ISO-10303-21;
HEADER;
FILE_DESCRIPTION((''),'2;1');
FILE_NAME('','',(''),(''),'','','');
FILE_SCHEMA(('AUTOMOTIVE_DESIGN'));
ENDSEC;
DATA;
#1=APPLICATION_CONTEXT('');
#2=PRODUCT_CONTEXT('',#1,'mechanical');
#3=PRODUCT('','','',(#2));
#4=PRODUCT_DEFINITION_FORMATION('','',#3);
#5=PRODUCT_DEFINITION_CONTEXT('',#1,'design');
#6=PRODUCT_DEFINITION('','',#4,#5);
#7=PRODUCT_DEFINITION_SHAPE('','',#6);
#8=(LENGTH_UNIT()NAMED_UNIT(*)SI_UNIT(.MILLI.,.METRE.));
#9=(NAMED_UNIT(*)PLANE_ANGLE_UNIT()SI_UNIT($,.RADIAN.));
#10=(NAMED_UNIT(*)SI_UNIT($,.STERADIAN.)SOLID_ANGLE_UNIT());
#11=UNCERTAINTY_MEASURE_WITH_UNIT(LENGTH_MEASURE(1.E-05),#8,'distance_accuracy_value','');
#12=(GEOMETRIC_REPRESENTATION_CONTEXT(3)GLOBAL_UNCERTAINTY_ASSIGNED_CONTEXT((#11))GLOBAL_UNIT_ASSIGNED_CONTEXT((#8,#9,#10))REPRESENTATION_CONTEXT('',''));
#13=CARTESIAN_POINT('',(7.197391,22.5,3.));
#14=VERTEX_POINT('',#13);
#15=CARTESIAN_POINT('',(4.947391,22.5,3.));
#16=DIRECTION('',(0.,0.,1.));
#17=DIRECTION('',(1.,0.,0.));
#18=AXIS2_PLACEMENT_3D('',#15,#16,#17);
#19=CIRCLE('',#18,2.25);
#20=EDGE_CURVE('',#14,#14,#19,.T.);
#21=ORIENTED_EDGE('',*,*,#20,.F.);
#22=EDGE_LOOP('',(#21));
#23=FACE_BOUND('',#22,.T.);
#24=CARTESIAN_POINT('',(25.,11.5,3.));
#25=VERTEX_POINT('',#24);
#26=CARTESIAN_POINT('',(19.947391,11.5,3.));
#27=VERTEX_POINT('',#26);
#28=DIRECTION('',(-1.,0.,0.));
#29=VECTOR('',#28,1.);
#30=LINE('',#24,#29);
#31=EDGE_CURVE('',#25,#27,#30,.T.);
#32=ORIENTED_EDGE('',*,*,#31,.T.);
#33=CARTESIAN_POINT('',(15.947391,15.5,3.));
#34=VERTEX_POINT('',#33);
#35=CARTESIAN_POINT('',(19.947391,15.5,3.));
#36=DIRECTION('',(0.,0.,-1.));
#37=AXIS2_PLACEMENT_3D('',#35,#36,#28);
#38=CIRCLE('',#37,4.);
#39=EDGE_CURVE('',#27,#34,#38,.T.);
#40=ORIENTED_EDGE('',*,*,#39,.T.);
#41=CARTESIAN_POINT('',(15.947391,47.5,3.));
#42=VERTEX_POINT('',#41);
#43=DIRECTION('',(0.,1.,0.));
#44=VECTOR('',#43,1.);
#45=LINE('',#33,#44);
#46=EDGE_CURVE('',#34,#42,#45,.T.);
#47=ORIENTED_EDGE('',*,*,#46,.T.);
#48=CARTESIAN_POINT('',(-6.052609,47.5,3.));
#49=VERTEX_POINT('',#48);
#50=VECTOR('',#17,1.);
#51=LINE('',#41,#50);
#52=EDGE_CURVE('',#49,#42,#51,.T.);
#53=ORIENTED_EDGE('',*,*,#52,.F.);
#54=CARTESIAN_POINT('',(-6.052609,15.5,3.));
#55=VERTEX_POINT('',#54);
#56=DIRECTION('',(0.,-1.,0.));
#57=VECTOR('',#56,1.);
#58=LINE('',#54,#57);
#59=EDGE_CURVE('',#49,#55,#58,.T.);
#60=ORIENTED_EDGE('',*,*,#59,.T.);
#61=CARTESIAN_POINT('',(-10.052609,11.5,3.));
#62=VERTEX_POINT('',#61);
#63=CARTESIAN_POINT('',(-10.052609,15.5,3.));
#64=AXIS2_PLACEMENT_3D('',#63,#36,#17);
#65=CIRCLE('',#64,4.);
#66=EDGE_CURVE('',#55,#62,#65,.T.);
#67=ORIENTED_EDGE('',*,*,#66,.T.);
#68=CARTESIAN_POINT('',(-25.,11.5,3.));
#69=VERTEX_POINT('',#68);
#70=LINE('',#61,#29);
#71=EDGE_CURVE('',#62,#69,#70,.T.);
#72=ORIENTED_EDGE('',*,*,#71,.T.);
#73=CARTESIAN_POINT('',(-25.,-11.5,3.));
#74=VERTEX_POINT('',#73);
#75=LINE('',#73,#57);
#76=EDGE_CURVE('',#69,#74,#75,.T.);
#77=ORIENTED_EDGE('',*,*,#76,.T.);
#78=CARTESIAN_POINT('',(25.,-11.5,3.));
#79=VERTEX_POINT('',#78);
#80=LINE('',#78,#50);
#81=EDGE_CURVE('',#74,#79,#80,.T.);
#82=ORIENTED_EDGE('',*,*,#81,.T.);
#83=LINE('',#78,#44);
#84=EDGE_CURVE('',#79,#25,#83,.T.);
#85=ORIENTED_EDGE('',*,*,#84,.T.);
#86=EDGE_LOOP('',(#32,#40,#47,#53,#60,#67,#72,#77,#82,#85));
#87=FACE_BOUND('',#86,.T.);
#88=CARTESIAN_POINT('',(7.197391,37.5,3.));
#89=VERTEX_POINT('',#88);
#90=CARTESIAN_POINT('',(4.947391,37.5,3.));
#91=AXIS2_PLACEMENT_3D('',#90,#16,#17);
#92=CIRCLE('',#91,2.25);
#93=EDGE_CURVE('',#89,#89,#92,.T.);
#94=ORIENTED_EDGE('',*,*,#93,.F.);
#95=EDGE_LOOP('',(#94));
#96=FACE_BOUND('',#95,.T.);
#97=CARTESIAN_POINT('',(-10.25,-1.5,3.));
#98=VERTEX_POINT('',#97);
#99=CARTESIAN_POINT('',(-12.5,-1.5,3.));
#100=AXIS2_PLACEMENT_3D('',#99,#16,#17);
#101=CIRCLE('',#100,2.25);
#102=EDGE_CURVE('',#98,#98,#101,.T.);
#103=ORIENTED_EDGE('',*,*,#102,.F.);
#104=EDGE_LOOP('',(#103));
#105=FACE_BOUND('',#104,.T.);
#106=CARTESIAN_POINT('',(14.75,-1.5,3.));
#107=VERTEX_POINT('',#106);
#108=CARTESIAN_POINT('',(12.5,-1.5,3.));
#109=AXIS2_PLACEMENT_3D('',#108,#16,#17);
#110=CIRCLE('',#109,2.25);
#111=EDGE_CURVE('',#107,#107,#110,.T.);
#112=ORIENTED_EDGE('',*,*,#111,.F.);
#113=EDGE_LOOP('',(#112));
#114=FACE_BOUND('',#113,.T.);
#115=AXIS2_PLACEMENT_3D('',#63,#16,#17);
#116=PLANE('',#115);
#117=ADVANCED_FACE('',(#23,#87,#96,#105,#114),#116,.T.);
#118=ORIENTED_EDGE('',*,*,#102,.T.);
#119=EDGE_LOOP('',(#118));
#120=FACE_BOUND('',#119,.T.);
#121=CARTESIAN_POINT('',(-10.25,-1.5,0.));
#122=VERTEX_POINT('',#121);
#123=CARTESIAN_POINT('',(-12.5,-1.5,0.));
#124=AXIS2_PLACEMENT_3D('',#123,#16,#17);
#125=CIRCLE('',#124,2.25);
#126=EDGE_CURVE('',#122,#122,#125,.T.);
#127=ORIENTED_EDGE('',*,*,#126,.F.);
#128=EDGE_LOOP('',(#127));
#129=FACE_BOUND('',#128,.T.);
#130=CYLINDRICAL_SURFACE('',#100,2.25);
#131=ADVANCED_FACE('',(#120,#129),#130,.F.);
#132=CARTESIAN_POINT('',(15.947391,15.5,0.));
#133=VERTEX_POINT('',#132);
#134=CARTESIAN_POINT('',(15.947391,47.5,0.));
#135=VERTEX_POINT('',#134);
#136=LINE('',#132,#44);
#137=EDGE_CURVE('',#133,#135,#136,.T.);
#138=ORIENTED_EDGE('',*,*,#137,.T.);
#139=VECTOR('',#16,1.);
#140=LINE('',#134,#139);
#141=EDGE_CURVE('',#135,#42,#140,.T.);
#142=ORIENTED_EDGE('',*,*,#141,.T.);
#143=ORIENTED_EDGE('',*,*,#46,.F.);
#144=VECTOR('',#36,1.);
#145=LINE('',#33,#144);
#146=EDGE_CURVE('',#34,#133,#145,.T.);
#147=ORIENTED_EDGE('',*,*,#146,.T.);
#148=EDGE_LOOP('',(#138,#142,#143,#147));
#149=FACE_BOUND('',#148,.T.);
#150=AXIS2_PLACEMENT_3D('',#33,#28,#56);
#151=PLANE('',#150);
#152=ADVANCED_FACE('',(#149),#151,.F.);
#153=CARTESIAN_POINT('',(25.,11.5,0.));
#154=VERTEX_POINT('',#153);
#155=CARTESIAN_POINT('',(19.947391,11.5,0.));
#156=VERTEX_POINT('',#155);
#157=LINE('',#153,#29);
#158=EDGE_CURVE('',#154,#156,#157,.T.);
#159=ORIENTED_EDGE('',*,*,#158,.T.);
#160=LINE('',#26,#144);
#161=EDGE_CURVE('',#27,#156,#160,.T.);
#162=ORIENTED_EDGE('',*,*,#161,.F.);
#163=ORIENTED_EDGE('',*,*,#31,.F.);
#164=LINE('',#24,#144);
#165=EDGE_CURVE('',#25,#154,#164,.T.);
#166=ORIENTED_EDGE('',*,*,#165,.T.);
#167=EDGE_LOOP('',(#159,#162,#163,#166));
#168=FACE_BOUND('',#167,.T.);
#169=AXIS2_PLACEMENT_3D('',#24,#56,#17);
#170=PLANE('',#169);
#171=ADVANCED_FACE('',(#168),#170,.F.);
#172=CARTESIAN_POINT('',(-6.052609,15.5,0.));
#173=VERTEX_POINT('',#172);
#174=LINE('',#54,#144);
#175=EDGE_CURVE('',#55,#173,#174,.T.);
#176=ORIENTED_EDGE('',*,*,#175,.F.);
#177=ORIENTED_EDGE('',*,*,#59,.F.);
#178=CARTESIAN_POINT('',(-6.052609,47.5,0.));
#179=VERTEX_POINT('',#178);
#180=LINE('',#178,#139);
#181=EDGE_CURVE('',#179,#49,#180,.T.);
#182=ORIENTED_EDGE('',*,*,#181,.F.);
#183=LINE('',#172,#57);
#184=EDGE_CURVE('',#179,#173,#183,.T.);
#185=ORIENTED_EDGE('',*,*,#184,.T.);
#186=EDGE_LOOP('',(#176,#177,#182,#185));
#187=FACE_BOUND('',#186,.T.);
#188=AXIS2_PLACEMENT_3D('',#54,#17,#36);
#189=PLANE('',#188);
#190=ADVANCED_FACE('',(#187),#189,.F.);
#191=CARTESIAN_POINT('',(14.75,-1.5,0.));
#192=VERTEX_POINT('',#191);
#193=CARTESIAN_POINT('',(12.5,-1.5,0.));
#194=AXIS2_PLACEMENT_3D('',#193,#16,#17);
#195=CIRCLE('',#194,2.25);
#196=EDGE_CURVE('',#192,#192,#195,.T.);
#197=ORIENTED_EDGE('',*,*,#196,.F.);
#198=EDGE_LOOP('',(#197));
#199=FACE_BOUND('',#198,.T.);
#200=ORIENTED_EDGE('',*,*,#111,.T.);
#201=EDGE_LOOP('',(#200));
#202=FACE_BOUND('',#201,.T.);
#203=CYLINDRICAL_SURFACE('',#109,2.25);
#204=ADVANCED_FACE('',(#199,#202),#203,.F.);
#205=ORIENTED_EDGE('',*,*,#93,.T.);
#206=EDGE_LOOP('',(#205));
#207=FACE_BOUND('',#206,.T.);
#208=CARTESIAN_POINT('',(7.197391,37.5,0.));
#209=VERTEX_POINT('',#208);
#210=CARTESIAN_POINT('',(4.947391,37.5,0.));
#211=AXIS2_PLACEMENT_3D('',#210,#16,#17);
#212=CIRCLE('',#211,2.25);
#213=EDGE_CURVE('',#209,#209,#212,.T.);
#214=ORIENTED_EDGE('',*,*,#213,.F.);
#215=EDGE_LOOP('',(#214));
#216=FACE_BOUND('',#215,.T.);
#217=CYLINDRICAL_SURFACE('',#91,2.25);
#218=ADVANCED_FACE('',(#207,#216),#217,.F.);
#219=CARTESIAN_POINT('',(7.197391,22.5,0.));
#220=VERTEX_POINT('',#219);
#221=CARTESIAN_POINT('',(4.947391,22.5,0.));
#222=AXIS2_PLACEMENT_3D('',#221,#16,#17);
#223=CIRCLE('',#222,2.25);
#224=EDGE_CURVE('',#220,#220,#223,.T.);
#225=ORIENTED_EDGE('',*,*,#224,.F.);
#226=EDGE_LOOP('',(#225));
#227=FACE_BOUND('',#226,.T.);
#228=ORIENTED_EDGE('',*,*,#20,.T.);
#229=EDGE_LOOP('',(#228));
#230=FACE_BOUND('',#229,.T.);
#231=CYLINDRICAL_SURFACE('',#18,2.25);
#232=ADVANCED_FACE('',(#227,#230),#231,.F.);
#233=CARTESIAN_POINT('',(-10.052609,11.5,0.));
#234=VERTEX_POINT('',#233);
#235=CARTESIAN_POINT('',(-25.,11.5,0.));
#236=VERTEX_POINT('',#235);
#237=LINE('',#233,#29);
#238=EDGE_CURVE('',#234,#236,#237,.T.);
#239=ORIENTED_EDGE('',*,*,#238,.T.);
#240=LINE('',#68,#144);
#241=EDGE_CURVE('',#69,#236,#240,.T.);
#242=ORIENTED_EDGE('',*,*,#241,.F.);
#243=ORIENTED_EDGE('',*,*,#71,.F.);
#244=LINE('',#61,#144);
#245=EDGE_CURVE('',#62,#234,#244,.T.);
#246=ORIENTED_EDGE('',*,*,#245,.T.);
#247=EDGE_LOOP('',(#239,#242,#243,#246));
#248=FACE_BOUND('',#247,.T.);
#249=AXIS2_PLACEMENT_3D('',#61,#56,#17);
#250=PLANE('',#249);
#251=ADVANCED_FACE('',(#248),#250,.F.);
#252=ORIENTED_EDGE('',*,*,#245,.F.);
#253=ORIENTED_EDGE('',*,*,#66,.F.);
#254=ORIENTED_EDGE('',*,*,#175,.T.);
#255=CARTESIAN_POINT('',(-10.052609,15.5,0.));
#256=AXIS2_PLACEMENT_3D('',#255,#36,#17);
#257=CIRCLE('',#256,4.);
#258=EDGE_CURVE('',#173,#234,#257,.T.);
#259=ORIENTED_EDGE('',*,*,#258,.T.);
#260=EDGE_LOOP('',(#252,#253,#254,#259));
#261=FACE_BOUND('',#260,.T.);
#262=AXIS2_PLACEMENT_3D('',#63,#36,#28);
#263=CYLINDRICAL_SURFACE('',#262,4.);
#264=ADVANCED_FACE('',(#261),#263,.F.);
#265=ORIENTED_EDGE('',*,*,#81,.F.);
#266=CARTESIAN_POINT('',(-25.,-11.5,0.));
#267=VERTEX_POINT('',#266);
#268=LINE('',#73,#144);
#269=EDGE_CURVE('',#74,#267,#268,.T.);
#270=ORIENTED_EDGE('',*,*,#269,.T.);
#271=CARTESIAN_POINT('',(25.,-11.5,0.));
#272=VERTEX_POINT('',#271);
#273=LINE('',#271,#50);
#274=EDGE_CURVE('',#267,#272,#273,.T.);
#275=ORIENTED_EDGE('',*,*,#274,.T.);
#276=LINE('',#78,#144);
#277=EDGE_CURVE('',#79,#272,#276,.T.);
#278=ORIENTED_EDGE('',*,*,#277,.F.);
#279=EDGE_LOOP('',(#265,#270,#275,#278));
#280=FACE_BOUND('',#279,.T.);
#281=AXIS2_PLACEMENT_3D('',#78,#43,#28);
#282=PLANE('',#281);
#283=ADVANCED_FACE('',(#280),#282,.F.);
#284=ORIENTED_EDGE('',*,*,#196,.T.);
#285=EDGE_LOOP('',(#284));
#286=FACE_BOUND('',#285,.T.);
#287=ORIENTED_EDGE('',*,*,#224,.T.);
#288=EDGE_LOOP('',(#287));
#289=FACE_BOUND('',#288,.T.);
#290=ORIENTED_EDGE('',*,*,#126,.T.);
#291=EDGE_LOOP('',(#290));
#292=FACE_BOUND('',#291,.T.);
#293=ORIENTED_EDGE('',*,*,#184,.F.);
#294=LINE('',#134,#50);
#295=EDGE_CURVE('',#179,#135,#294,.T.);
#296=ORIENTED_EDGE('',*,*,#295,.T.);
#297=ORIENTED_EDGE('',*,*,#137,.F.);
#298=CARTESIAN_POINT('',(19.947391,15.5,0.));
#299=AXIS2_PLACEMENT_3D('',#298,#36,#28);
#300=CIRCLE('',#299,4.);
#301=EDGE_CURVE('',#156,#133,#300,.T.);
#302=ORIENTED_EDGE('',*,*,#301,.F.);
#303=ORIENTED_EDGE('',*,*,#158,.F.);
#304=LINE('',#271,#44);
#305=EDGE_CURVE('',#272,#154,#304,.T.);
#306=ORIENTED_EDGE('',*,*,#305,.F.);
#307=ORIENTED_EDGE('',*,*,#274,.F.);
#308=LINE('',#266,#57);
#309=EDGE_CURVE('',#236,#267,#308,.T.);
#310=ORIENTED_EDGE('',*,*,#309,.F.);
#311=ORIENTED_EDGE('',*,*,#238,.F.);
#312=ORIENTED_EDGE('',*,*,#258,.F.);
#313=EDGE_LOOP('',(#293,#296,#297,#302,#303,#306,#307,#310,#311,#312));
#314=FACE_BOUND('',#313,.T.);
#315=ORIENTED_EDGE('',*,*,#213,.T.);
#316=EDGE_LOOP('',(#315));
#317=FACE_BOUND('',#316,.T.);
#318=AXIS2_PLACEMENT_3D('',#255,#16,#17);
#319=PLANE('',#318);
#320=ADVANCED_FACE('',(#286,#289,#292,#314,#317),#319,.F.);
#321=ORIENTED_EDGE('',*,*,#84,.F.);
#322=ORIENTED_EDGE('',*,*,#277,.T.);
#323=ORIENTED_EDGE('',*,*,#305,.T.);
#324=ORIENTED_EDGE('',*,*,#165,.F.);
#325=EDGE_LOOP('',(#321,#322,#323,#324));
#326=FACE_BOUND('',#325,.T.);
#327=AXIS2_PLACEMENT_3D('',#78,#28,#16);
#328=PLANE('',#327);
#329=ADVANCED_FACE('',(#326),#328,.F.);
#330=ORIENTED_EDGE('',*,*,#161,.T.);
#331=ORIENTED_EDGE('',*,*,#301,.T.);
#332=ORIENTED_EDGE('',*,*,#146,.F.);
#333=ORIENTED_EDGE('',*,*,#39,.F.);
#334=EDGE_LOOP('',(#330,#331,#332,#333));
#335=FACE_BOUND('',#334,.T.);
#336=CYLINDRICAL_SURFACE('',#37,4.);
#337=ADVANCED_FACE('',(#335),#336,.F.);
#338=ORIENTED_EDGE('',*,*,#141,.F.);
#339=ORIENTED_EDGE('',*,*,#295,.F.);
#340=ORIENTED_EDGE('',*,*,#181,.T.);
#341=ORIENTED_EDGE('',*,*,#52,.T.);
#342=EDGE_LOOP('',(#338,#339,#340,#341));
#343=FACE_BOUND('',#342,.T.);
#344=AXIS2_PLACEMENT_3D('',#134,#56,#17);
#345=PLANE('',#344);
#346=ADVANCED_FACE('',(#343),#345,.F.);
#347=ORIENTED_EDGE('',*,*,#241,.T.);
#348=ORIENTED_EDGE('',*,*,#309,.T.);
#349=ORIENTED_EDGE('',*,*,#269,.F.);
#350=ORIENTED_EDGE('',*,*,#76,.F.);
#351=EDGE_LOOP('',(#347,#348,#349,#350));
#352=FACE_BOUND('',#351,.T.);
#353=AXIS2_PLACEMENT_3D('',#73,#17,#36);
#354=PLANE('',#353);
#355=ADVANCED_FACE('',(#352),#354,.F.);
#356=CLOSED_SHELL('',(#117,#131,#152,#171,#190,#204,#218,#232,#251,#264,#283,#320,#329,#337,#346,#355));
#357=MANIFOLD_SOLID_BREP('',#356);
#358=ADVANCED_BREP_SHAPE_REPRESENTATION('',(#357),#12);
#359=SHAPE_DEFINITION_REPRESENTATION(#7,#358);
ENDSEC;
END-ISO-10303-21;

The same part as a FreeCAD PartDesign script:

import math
import FreeCAD as App
import Part
import Sketcher
from FreeCAD import Vector
Q = App.Units.Quantity

doc = App.newDocument("Part")
params = doc.addObject("Spreadsheet::Sheet", "Params")
for row, (alias, value) in enumerate([
    ("sketch1_radius", "4 mm"),
    ("sketch1_width", "50 mm"),
    ("sketch1_width2", "22 mm"),
    ("sketch1_height", "23 mm"),
    ("sketch1_height2", "56 mm"),
    ("pad1_length", "3 mm"),
    ("sketch2_diameter", "4.5 mm"),
    ("hole_diameter", "4.5 mm"),
    ("sketch3_diameter", "4.5 mm"),
    ("hole2_diameter", "4.5 mm"),
    ("sketch4_width", "22 mm"),
    ("sketch4_height", "24 mm"),
], start=1):
    params.set(f"A{row}", alias)
    params.set(f"B{row}", "=" + value)
    params.setAlias(f"B{row}", alias)

body = doc.addObject("PartDesign::Body", "Body")

# Sketch on XY plane
sketch1 = body.newObject("Sketcher::SketchObject", "Sketch")
sketch1.AttachmentSupport = (doc.getObject("XY_Plane"), [""])
sketch1.MapMode = "FlatFace"
sketch1.addGeometry(Part.LineSegment(Vector(-10.052609, 11.5, 0), Vector(-25, 11.5, 0)), False)
sketch1.addGeometry(Part.LineSegment(Vector(-25, 11.5, 0), Vector(-25, -11.5, 0)), False)
sketch1.addGeometry(Part.LineSegment(Vector(-25, -11.5, 0), Vector(25, -11.5, 0)), False)
sketch1.addGeometry(Part.LineSegment(Vector(25, -11.5, 0), Vector(25, 11.5, 0)), False)
sketch1.addGeometry(Part.LineSegment(Vector(25, 11.5, 0), Vector(19.947391, 11.5, 0)), False)
sketch1.addGeometry(Part.ArcOfCircle(Part.Circle(Vector(19.947391, 15.5, 0), Vector(0, 0, 1), 4), math.radians(180), math.radians(270)), False)
sketch1.addGeometry(Part.LineSegment(Vector(15.947391, 15.5, 0), Vector(15.947391, 71.5, 0)), False)
sketch1.addGeometry(Part.LineSegment(Vector(15.947391, 71.5, 0), Vector(-6.052609, 71.5, 0)), False)
sketch1.addGeometry(Part.LineSegment(Vector(-6.052609, 71.5, 0), Vector(-6.052609, 15.5, 0)), False)
sketch1.addGeometry(Part.ArcOfCircle(Part.Circle(Vector(-10.052609, 15.5, 0), Vector(0, 0, 1), 4), math.radians(-90), math.radians(0)), False)
sketch1.addConstraint(Sketcher.Constraint("Coincident", 0, 2, 1, 1))
sketch1.addConstraint(Sketcher.Constraint("Coincident", 1, 2, 2, 1))
sketch1.addConstraint(Sketcher.Constraint("Coincident", 2, 2, 3, 1))
sketch1.addConstraint(Sketcher.Constraint("Coincident", 3, 2, 4, 1))
sketch1.addConstraint(Sketcher.Constraint("Tangent", 4, 2, 5, 2))
sketch1.addConstraint(Sketcher.Constraint("Tangent", 5, 1, 6, 1))
sketch1.addConstraint(Sketcher.Constraint("Coincident", 6, 2, 7, 1))
sketch1.addConstraint(Sketcher.Constraint("Coincident", 7, 2, 8, 1))
sketch1.addConstraint(Sketcher.Constraint("Tangent", 8, 2, 9, 2))
sketch1.addConstraint(Sketcher.Constraint("Tangent", 9, 1, 0, 1))
sketch1.addConstraint(Sketcher.Constraint("Horizontal", 0))
sketch1.addConstraint(Sketcher.Constraint("Vertical", 1))
sketch1.addConstraint(Sketcher.Constraint("Horizontal", 2))
sketch1.addConstraint(Sketcher.Constraint("Vertical", 3))
sketch1.addConstraint(Sketcher.Constraint("Horizontal", 4))
sketch1.addConstraint(Sketcher.Constraint("Vertical", 6))
sketch1.addConstraint(Sketcher.Constraint("Horizontal", 7))
sketch1.addConstraint(Sketcher.Constraint("Vertical", 8))
sketch1.addConstraint(Sketcher.Constraint("Equal", 5, 9))
sketch1.addConstraint(Sketcher.Constraint("Symmetric", 0, 2, 2, 2, -1, 1))
sketch1.addConstraint(Sketcher.Constraint("Horizontal", 5, 3, 9, 3))
sketch1.addConstraint(Sketcher.Constraint("Radius", 5, Q("4 mm")))
sketch1.addConstraint(Sketcher.Constraint("DistanceX", 2, 1, 2, 2, Q("50 mm")))
sketch1.addConstraint(Sketcher.Constraint("DistanceX", 7, 2, 7, 1, Q("22 mm")))
sketch1.addConstraint(Sketcher.Constraint("DistanceY", 1, 2, 1, 1, Q("23 mm")))
sketch1.addConstraint(Sketcher.Constraint("DistanceY", 6, 1, 6, 2, Q("56 mm")))
sketch1.addConstraint(Sketcher.Constraint("DistanceX", 0, 2, 0, 1, Q("14.947391 mm")))
sketch1.setExpression("Constraints[21]", "Params.sketch1_radius")
sketch1.setExpression("Constraints[22]", "Params.sketch1_width")
sketch1.setExpression("Constraints[23]", "Params.sketch1_width2")
sketch1.setExpression("Constraints[24]", "Params.sketch1_height")
sketch1.setExpression("Constraints[25]", "Params.sketch1_height2")
pad1 = body.newObject("PartDesign::Pad", "Pad")
pad1.Profile = sketch1
pad1.setExpression("Length", "Params.pad1_length")

# Sketch on XY plane
sketch2 = body.newObject("Sketcher::SketchObject", "Sketch001")
sketch2.AttachmentSupport = (doc.getObject("XY_Plane"), [""])
sketch2.MapMode = "FlatFace"
sketch2.AttachmentOffset = App.Placement(Vector(0, 0, 3), App.Rotation())
sketch2.addGeometry(Part.Circle(Vector(4.947391, 22.5, 0), Vector(0, 0, 1), 2.25), False)
sketch2.addGeometry(Part.Circle(Vector(4.947391, 37.5, 0), Vector(0, 0, 1), 2.25), False)
sketch2.addConstraint(Sketcher.Constraint("Equal", 0, 1))
sketch2.addConstraint(Sketcher.Constraint("Vertical", 0, 3, 1, 3))
sketch2.addConstraint(Sketcher.Constraint("Diameter", 0, Q("4.5 mm")))
sketch2.addConstraint(Sketcher.Constraint("DistanceY", 0, 3, 1, 3, Q("15 mm")))
sketch2.addConstraint(Sketcher.Constraint("DistanceY", -1, 1, 0, 3, Q("22.5 mm")))
sketch2.addConstraint(Sketcher.Constraint("DistanceX", -1, 1, 0, 3, Q("4.947391 mm")))
sketch2.setExpression("Constraints[2]", "Params.sketch2_diameter")
doc.recompute()
hole = body.newObject("PartDesign::Hole", "Hole")
hole.Profile = sketch2
hole.ThreadType = "None"
hole.setExpression("Diameter", "Params.hole_diameter")
hole.DepthType = "ThroughAll"

# Sketch on XY plane
sketch3 = body.newObject("Sketcher::SketchObject", "Sketch002")
sketch3.AttachmentSupport = (doc.getObject("XY_Plane"), [""])
sketch3.MapMode = "FlatFace"
sketch3.AttachmentOffset = App.Placement(Vector(0, 0, 3), App.Rotation())
sketch3.addGeometry(Part.Circle(Vector(-12.5, -1.5, 0), Vector(0, 0, 1), 2.25), False)
sketch3.addGeometry(Part.Circle(Vector(12.5, -1.5, 0), Vector(0, 0, 1), 2.25), False)
sketch3.addConstraint(Sketcher.Constraint("Equal", 0, 1))
sketch3.addConstraint(Sketcher.Constraint("Symmetric", 0, 3, 1, 3, -2))
sketch3.addConstraint(Sketcher.Constraint("Diameter", 0, Q("4.5 mm")))
sketch3.addConstraint(Sketcher.Constraint("DistanceX", 0, 3, 1, 3, Q("25 mm")))
sketch3.addConstraint(Sketcher.Constraint("DistanceY", 0, 3, -1, 1, Q("1.5 mm")))
sketch3.setExpression("Constraints[2]", "Params.sketch3_diameter")
doc.recompute()
hole2 = body.newObject("PartDesign::Hole", "Hole001")
hole2.Profile = sketch3
hole2.ThreadType = "None"
hole2.setExpression("Diameter", "Params.hole2_diameter")
hole2.DepthType = "ThroughAll"

# Sketch on XY plane
sketch4 = body.newObject("Sketcher::SketchObject", "Sketch003")
sketch4.AttachmentSupport = (doc.getObject("XY_Plane"), [""])
sketch4.MapMode = "FlatFace"
sketch4.AttachmentOffset = App.Placement(Vector(0, 0, 3), App.Rotation())
sketch4.addGeometry(Part.LineSegment(Vector(-6.052609, 71.5, 0), Vector(-6.052609, 47.5, 0)), False)
sketch4.addGeometry(Part.LineSegment(Vector(-6.052609, 47.5, 0), Vector(15.947391, 47.5, 0)), False)
sketch4.addGeometry(Part.LineSegment(Vector(15.947391, 47.5, 0), Vector(15.947391, 71.5, 0)), False)
sketch4.addGeometry(Part.LineSegment(Vector(15.947391, 71.5, 0), Vector(-6.052609, 71.5, 0)), False)
sketch4.addConstraint(Sketcher.Constraint("Coincident", 0, 2, 1, 1))
sketch4.addConstraint(Sketcher.Constraint("Coincident", 1, 2, 2, 1))
sketch4.addConstraint(Sketcher.Constraint("Coincident", 2, 2, 3, 1))
sketch4.addConstraint(Sketcher.Constraint("Coincident", 3, 2, 0, 1))
sketch4.addConstraint(Sketcher.Constraint("Vertical", 0))
sketch4.addConstraint(Sketcher.Constraint("Horizontal", 1))
sketch4.addConstraint(Sketcher.Constraint("Vertical", 2))
sketch4.addConstraint(Sketcher.Constraint("Horizontal", 3))
sketch4.addConstraint(Sketcher.Constraint("DistanceX", 1, 1, 1, 2, Q("22 mm")))
sketch4.addConstraint(Sketcher.Constraint("DistanceY", 0, 2, 0, 1, Q("24 mm")))
sketch4.addConstraint(Sketcher.Constraint("DistanceY", -1, 1, 0, 2, Q("47.5 mm")))
sketch4.addConstraint(Sketcher.Constraint("DistanceX", 0, 2, -1, 1, Q("6.052609 mm")))
sketch4.setExpression("Constraints[8]", "Params.sketch4_width")
sketch4.setExpression("Constraints[9]", "Params.sketch4_height")
pocket1 = body.newObject("PartDesign::Pocket", "Pocket")
pocket1.Profile = sketch4
pocket1.Type = "ThroughAll"

doc.recompute()
